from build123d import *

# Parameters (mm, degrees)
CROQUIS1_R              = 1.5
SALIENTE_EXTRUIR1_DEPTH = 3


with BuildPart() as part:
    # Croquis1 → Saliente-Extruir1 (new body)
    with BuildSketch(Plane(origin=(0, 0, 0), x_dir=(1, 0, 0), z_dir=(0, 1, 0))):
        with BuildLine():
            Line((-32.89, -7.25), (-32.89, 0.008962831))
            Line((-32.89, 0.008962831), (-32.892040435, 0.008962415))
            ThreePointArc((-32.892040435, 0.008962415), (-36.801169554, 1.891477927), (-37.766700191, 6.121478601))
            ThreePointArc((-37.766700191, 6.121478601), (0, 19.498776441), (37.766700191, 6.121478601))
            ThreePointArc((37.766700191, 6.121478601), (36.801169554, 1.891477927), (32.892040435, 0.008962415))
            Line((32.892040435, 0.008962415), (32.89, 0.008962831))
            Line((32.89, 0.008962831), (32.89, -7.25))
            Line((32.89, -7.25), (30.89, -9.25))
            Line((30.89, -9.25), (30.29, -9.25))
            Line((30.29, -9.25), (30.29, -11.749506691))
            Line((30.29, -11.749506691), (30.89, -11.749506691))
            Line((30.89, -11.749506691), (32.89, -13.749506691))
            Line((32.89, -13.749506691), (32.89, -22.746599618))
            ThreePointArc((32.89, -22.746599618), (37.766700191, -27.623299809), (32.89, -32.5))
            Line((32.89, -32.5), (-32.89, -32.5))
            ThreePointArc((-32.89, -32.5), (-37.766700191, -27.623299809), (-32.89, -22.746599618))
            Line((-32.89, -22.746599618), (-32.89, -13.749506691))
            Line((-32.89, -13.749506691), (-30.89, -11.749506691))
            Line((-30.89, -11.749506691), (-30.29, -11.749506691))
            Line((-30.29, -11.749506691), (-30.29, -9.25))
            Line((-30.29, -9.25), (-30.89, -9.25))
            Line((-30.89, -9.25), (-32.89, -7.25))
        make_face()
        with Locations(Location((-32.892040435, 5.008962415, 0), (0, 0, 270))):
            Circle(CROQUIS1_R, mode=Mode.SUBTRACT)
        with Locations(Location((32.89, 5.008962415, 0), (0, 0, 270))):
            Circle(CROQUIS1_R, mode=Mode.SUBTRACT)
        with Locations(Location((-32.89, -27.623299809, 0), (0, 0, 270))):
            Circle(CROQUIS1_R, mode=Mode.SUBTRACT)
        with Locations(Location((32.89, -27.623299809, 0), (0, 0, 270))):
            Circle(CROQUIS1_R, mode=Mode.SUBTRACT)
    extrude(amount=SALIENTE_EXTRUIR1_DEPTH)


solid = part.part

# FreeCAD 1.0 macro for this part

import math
import FreeCAD as App
import Part
import Sketcher
from FreeCAD import Vector

doc = App.newDocument("Part")
body = doc.addObject("PartDesign::Body", "Body")

sketch1 = doc.addObject("Sketcher::SketchObject", "Sketch")
body.addObject(sketch1)
sketch1.AttachmentSupport = (doc.XZ_Plane, [""])
sketch1.MapMode = "FlatFace"
sketch1.addGeometry([
    Part.LineSegment(Vector(-32.89, -0.009, 0), Vector(-32.89, 7.25, 0)),
    Part.LineSegment(Vector(-32.89, 7.25, 0), Vector(-30.89, 9.25, 0)),
    Part.LineSegment(Vector(-30.89, 9.25, 0), Vector(-30.29, 9.25, 0)),
    Part.LineSegment(Vector(-30.29, 9.25, 0), Vector(-30.29, 11.7495, 0)),
    Part.LineSegment(Vector(-30.29, 11.7495, 0), Vector(-30.89, 11.7495, 0)),
    Part.LineSegment(Vector(-30.89, 11.7495, 0), Vector(-32.89, 13.7495, 0)),
    Part.LineSegment(Vector(-32.89, 13.7495, 0), Vector(-32.89, 22.7466, 0)),
    Part.ArcOfCircle(Part.Circle(Vector(-32.89, 27.6233, 0), Vector(0, 0, 1), 4.8767), math.radians(90), math.radians(270)),
    Part.LineSegment(Vector(-32.89, 32.5, 0), Vector(32.89, 32.5, 0)),
    Part.ArcOfCircle(Part.Circle(Vector(32.89, 27.6233, 0), Vector(0, 0, 1), 4.8767), math.radians(-90), math.radians(90)),
    Part.LineSegment(Vector(32.89, 22.7466, 0), Vector(32.89, 13.7495, 0)),
    Part.LineSegment(Vector(32.89, 13.7495, 0), Vector(30.89, 11.7495, 0)),
    Part.LineSegment(Vector(30.89, 11.7495, 0), Vector(30.29, 11.7495, 0)),
    Part.LineSegment(Vector(30.29, 11.7495, 0), Vector(30.29, 9.25, 0)),
    Part.LineSegment(Vector(30.29, 9.25, 0), Vector(30.89, 9.25, 0)),
    Part.LineSegment(Vector(30.89, 9.25, 0), Vector(32.89, 7.25, 0)),
    Part.LineSegment(Vector(32.89, 7.25, 0), Vector(32.89, -0.009, 0)),
    Part.LineSegment(Vector(32.89, -0.009, 0), Vector(32.892, -0.009, 0)),
    Part.ArcOfCircle(Part.Circle(Vector(32.892, -5.009, 0), Vector(0, 0, 1), 5), math.radians(-13), math.radians(90)),
    Part.ArcOfCircle(Part.Circle(Vector(0, 40.5012, 0), Vector(0, 0, 1), 60), math.radians(-129), math.radians(-51)),
    Part.ArcOfCircle(Part.Circle(Vector(-32.892, -5.009, 0), Vector(0, 0, 1), 5), math.radians(90), math.radians(193)),
    Part.LineSegment(Vector(-32.892, -0.009, 0), Vector(-32.89, -0.009, 0)),
    Part.Circle(Vector(32.89, 27.6233, 0), Vector(0, 0, 1), 1.5),
    Part.Circle(Vector(-32.89, 27.6233, 0), Vector(0, 0, 1), 1.5),
    Part.Circle(Vector(32.89, -5.009, 0), Vector(0, 0, 1), 1.5),
    Part.Circle(Vector(-32.892, -5.009, 0), Vector(0, 0, 1), 1.5),
], False)
sketch1.addConstraint([
    Sketcher.Constraint("Coincident", 0, 2, 1, 1),
    Sketcher.Constraint("Coincident", 1, 2, 2, 1),
    Sketcher.Constraint("Coincident", 2, 2, 3, 1),
    Sketcher.Constraint("Coincident", 3, 2, 4, 1),
    Sketcher.Constraint("Coincident", 4, 2, 5, 1),
    Sketcher.Constraint("Coincident", 5, 2, 6, 1),
    Sketcher.Constraint("Coincident", 6, 2, 7, 2),
    Sketcher.Constraint("Tangent", 7, 1, 8, 1),
    Sketcher.Constraint("Tangent", 8, 2, 9, 2),
    Sketcher.Constraint("Coincident", 9, 1, 10, 1),
    Sketcher.Constraint("Coincident", 10, 2, 11, 1),
    Sketcher.Constraint("Coincident", 11, 2, 12, 1),
    Sketcher.Constraint("Coincident", 12, 2, 13, 1),
    Sketcher.Constraint("Coincident", 13, 2, 14, 1),
    Sketcher.Constraint("Coincident", 14, 2, 15, 1),
    Sketcher.Constraint("Coincident", 15, 2, 16, 1),
    Sketcher.Constraint("Coincident", 16, 2, 17, 1),
    Sketcher.Constraint("Coincident", 17, 2, 18, 2),
    Sketcher.Constraint("Coincident", 18, 1, 19, 2),
    Sketcher.Constraint("Coincident", 19, 1, 20, 2),
    Sketcher.Constraint("Coincident", 20, 1, 21, 1),
    Sketcher.Constraint("Coincident", 21, 2, 0, 1),
    Sketcher.Constraint("Vertical", 0),
    Sketcher.Constraint("Horizontal", 2),
    Sketcher.Constraint("Vertical", 3),
    Sketcher.Constraint("Horizontal", 4),
    Sketcher.Constraint("Vertical", 6),
    Sketcher.Constraint("Horizontal", 8),
    Sketcher.Constraint("Vertical", 10),
    Sketcher.Constraint("Horizontal", 12),
    Sketcher.Constraint("Vertical", 13),
    Sketcher.Constraint("Horizontal", 14),
    Sketcher.Constraint("Vertical", 16),
    Sketcher.Constraint("Horizontal", 17),
    Sketcher.Constraint("Horizontal", 21),
    Sketcher.Constraint("Coincident", 22, 3, 9, 3),
    Sketcher.Constraint("Coincident", 23, 3, 7, 3),
    Sketcher.Constraint("Coincident", 25, 3, 20, 3),
    Sketcher.Constraint("Equal", 7, 9),
    Sketcher.Constraint("Equal", 18, 20),
    Sketcher.Constraint("Equal", 22, 23),
    Sketcher.Constraint("Equal", 23, 24),
    Sketcher.Constraint("Equal", 24, 25),
    Sketcher.Constraint("Symmetric", 18, 3, 20, 3, -2),
    Sketcher.Constraint("Symmetric", 5, 2, 10, 2, -2),
    Sketcher.Constraint("Symmetric", 4, 2, 11, 2, -2),
    Sketcher.Constraint("Symmetric", 2, 2, 13, 2, -2),
    Sketcher.Constraint("Symmetric", 0, 2, 15, 2, -2),
    Sketcher.Constraint("PointOnObject", 19, 3, -2),
    Sketcher.Constraint("Perpendicular", 1, 5),
    Sketcher.Constraint("Perpendicular", 5, 11),
    Sketcher.Constraint("Perpendicular", 11, 15),
    Sketcher.Constraint("Horizontal", 20, 3, 24, 3),
    Sketcher.Constraint("Vertical", 22, 3, 24, 3),
    Sketcher.Constraint("Vertical", 23, 3, 0, 2),
    Sketcher.Constraint("Vertical", 1, 2, 4, 2),
    Sketcher.Constraint("Vertical", 0, 2, 5, 2),
    Sketcher.Constraint("Vertical", 8, 2, 9, 1),
    Sketcher.Constraint("Vertical", 18, 3, 17, 2),
    Sketcher.Constraint("Vertical", 25, 3, 20, 1),
    Sketcher.Constraint("Diameter", 22, 3.0),
    Sketcher.Constraint("Radius", 18, 5.0),
    Sketcher.Constraint("Radius", 19, 60.0),
    Sketcher.Constraint("DistanceX", 2, 1, 2, 2, 0.6),
    Sketcher.Constraint("DistanceX", 0, 2, 1, 2, 2.0),
    Sketcher.Constraint("DistanceX", 8, 1, 8, 2, 65.78),
    Sketcher.Constraint("DistanceY", -1, 1, 7, 1, 32.5),
    Sketcher.Constraint("Radius", 7, 4.8767),
    Sketcher.Constraint("DistanceY", -1, 1, 0, 2, 7.25),
    Sketcher.Constraint("DistanceX", 17, 1, 17, 2, 0.00204),
    Sketcher.Constraint("DistanceX", -1, 1, 18, 1, 37.7667),
    Sketcher.Constraint("DistanceY", 0, 1, 0, 2, 7.258963),
    Sketcher.Constraint("DistanceY", 3, 1, 3, 2, 2.499507),
])
pad1 = doc.addObject("PartDesign::Pad", "Pad")
body.addObject(pad1)
pad1.Profile = sketch1
pad1.Length = 3
pad1.Reversed = True

doc.recompute()
